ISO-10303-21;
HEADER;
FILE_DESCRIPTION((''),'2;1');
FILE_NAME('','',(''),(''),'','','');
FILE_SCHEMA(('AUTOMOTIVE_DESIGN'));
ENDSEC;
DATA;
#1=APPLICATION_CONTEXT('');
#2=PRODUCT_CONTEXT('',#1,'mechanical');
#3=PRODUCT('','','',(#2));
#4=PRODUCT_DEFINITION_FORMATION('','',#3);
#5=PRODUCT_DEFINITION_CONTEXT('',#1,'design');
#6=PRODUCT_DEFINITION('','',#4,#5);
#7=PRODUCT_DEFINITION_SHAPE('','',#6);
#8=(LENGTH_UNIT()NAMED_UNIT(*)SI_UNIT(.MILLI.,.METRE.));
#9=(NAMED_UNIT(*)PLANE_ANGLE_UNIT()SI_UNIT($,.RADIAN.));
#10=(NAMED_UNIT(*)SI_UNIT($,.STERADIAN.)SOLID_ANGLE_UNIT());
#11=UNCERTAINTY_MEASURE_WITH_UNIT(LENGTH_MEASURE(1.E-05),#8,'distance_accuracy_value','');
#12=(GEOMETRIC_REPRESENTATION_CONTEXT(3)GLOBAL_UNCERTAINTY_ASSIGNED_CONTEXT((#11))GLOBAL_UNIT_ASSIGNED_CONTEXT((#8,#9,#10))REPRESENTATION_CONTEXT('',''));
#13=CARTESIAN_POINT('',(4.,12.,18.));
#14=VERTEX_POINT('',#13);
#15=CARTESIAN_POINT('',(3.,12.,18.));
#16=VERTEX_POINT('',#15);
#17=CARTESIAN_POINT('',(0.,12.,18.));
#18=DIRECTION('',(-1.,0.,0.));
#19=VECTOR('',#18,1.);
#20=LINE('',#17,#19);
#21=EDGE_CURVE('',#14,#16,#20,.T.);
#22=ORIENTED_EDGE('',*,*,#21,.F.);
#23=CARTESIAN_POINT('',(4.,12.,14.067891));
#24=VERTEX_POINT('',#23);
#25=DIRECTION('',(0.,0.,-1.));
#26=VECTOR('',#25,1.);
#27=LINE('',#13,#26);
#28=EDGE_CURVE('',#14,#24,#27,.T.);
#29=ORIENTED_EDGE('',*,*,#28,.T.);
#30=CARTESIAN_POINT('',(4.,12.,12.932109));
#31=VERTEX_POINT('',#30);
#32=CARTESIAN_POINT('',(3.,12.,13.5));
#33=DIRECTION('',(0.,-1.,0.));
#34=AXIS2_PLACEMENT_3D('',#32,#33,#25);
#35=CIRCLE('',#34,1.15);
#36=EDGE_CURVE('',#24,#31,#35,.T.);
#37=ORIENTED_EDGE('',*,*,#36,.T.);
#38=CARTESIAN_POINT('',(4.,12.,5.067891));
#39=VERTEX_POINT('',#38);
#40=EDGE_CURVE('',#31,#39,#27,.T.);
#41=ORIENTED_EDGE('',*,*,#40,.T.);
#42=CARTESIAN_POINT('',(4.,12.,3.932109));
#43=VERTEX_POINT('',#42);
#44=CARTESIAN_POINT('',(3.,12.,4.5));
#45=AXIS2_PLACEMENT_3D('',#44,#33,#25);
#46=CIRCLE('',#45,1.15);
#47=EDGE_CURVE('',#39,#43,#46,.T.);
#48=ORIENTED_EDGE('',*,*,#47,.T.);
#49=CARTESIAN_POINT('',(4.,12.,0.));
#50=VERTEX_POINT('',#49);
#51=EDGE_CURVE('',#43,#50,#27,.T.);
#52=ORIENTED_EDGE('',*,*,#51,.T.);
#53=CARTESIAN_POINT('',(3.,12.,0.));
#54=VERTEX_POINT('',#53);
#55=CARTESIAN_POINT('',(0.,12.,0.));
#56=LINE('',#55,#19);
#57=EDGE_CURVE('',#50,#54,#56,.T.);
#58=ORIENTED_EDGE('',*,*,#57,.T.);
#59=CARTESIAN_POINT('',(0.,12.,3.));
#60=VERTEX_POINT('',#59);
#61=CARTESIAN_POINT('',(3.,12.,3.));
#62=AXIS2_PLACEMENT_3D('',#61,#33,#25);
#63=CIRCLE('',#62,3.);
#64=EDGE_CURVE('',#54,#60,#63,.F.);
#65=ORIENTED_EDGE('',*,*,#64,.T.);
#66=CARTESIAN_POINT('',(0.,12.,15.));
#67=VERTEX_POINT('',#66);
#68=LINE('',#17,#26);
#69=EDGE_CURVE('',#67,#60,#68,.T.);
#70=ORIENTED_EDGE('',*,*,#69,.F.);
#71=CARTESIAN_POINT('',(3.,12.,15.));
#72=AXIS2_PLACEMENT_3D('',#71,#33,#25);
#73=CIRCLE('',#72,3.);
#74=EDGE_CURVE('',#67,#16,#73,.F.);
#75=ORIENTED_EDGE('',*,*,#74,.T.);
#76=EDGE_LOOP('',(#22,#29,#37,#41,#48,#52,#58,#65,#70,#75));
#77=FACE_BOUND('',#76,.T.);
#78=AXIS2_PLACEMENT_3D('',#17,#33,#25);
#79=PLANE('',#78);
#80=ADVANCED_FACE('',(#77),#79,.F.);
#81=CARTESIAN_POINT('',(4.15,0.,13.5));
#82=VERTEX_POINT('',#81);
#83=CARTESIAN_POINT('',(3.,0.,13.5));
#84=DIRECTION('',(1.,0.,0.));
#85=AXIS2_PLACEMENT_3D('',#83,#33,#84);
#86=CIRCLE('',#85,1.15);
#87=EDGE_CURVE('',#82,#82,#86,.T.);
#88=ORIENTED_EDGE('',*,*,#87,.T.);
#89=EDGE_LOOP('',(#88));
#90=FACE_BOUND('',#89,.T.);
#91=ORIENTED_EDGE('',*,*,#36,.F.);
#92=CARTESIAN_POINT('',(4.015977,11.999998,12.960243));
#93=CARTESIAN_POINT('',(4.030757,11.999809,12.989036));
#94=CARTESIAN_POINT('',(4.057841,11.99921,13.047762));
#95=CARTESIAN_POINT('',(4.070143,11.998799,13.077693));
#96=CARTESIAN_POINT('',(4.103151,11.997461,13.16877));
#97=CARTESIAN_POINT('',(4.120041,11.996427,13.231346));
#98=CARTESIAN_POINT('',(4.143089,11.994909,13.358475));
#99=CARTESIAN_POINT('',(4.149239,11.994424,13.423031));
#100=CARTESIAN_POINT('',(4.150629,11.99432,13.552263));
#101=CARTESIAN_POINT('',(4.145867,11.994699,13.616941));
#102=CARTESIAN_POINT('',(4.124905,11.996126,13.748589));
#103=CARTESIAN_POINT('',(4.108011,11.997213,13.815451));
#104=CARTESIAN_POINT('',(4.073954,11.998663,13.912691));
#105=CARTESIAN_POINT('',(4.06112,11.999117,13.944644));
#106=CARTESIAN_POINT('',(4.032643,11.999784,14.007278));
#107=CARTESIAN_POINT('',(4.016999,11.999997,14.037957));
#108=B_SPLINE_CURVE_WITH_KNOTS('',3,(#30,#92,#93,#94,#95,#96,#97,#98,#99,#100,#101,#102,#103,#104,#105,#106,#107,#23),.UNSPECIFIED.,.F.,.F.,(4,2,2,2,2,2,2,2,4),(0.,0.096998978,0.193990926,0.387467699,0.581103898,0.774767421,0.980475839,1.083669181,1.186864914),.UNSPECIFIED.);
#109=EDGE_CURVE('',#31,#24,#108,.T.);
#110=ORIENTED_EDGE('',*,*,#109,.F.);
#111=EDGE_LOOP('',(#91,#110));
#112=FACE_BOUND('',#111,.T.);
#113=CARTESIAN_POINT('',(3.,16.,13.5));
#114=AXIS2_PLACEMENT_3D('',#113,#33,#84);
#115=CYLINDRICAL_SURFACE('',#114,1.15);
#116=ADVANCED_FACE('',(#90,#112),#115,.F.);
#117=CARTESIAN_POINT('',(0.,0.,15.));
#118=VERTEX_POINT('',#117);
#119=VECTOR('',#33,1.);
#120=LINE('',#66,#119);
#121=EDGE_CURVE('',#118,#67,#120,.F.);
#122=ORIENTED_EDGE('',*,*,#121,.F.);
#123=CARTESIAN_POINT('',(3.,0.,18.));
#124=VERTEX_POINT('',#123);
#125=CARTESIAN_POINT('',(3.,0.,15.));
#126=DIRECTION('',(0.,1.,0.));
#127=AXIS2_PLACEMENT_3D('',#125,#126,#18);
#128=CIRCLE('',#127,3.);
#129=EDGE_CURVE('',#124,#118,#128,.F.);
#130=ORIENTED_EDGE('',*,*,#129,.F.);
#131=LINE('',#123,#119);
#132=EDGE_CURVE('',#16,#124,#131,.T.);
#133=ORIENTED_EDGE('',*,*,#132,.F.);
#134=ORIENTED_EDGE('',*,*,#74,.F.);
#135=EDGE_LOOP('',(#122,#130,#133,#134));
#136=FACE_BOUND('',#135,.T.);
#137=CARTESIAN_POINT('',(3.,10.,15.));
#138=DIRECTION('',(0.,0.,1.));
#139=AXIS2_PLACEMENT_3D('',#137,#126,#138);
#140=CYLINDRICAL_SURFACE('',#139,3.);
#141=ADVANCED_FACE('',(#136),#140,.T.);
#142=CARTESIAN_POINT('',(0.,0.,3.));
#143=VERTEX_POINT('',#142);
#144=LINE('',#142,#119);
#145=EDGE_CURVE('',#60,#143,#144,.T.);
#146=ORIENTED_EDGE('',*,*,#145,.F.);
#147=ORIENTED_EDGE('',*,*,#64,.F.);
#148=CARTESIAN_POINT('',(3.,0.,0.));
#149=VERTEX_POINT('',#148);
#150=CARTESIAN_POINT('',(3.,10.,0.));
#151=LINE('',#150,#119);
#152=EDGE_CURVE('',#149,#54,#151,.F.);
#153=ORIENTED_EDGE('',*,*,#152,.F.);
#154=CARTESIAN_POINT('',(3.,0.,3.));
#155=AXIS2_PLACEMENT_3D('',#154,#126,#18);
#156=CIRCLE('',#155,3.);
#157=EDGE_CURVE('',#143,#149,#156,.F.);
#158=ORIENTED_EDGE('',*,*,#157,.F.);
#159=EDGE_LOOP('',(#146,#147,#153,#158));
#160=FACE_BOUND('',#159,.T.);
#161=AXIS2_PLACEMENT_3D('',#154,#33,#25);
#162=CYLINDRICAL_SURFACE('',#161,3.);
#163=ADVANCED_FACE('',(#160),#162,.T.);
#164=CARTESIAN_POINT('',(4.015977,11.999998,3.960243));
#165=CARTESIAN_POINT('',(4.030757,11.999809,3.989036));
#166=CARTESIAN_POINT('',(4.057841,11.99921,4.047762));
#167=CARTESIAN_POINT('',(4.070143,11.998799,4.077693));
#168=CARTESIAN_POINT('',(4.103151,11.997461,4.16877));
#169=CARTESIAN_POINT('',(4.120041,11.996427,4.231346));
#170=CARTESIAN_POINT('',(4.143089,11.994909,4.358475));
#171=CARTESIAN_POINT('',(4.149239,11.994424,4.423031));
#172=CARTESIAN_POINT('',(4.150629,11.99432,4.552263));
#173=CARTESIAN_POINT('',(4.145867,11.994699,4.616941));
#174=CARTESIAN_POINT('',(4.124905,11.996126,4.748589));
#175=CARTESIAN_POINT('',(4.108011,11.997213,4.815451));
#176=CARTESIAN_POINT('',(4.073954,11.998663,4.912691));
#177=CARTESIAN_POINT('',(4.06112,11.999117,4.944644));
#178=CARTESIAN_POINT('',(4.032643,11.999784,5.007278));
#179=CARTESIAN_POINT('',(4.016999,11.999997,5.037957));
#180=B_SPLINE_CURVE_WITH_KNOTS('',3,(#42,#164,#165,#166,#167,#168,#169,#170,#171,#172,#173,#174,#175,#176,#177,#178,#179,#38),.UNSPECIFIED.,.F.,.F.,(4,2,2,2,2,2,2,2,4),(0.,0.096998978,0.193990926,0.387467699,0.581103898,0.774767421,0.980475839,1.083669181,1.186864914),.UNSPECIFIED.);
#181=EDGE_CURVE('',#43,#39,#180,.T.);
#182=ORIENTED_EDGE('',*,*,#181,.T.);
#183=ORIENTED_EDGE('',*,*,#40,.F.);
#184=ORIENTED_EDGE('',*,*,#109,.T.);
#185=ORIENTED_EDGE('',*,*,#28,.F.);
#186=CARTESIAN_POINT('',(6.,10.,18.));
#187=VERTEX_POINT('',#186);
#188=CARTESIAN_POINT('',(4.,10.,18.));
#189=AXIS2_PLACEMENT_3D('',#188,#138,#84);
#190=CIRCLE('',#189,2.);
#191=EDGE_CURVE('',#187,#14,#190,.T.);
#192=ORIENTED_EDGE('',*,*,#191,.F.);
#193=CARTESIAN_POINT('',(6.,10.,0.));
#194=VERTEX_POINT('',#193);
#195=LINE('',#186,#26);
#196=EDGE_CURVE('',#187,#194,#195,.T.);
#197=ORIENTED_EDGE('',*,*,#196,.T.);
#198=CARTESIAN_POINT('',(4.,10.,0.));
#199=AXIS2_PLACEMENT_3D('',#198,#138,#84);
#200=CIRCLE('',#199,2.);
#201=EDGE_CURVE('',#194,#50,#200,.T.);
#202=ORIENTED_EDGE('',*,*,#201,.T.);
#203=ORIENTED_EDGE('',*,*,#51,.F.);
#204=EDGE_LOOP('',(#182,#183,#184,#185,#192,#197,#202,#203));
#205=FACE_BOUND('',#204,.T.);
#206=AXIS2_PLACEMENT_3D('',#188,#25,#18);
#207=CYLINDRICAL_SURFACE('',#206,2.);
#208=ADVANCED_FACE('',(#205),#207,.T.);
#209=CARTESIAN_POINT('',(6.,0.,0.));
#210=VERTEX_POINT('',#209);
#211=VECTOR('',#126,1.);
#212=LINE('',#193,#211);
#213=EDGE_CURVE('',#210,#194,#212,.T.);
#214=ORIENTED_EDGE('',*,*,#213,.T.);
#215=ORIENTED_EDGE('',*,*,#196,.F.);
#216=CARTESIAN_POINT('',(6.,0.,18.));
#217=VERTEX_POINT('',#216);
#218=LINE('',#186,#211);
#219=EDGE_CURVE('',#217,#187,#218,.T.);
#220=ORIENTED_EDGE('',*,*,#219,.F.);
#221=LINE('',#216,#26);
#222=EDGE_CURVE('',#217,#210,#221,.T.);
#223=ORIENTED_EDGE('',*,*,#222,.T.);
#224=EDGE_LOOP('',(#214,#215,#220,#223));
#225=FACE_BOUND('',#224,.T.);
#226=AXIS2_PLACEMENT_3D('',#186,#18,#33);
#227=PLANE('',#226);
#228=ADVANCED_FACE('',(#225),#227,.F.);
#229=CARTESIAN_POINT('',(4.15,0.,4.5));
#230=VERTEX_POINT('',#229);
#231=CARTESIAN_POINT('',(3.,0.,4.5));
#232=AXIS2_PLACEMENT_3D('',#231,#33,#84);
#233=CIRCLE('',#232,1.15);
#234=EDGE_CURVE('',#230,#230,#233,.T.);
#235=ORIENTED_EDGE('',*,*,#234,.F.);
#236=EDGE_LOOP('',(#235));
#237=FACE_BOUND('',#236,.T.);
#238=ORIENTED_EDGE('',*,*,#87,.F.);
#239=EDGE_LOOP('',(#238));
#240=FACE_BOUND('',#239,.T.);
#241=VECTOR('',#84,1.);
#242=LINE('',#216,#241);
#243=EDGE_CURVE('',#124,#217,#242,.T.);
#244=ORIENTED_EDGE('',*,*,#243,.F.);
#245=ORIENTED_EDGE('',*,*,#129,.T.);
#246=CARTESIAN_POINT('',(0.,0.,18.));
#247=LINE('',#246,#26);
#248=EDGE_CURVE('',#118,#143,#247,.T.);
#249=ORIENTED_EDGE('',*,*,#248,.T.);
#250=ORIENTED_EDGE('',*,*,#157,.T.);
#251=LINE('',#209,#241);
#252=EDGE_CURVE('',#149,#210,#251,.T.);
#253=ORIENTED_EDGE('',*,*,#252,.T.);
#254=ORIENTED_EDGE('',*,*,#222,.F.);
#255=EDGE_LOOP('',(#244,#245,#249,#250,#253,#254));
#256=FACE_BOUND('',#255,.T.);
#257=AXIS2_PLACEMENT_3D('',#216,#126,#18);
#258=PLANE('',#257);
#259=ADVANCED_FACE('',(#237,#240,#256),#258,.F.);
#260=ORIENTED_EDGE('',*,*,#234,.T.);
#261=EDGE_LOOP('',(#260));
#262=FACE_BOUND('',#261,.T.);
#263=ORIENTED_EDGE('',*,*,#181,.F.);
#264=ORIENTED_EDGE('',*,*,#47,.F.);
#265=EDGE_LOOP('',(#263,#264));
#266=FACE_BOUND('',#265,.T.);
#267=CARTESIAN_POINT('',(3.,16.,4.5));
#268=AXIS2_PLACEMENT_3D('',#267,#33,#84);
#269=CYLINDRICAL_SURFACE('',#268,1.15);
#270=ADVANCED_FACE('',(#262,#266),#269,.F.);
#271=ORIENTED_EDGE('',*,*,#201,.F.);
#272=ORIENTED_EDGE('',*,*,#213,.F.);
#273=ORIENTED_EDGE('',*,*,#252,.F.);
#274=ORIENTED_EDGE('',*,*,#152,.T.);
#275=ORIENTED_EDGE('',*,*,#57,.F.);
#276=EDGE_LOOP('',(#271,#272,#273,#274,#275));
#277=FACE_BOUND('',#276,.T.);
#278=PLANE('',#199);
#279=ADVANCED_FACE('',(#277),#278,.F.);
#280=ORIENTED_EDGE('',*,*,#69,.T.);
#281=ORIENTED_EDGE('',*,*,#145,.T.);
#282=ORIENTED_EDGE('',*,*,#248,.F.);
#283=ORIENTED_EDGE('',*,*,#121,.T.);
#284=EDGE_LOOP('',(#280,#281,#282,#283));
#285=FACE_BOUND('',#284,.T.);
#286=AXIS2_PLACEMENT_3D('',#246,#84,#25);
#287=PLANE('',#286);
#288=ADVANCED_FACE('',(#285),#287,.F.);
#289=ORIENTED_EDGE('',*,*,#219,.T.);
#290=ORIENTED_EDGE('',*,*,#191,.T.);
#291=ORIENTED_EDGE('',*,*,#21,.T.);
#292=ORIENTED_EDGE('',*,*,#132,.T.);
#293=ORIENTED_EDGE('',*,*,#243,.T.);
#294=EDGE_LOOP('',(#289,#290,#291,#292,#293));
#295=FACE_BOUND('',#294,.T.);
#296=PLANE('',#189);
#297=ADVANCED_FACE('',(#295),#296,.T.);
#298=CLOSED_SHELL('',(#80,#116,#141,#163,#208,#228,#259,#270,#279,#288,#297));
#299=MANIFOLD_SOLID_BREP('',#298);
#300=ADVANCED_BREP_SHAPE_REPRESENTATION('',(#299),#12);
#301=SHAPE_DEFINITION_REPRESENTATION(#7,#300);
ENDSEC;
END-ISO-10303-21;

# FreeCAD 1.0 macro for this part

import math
import FreeCAD as App
import Part
import Sketcher

V = App.Vector
Q = App.Units.Quantity


def edges_at(feature, points):
    """Names of the edges that pass closest to the given points."""
    edges = feature.Shape.Edges
    near = lambda p: min(range(len(edges)), key=lambda i: edges[i].distToShape(Part.Vertex(*p))[0])
    return sorted({f"Edge{near(p) + 1}" for p in points})

doc = App.newDocument("Part")
body = doc.addObject("PartDesign::Body", "Body")

sketch1 = doc.addObject("Sketcher::SketchObject", "Sketch")
body.addObject(sketch1)
sketch1.AttachmentSupport = (doc.XY_Plane, [""])
sketch1.MapMode = "FlatFace"
sketch1.addGeometry([
    Part.LineSegment(V(0, 0, 0), V(6, 0, 0)),
    Part.LineSegment(V(6, 0, 0), V(6, 10, 0)),
    Part.ArcOfCircle(Part.Circle(V(4, 10, 0), V(0, 0, 1), 2), math.radians(0), math.radians(90)),
    Part.LineSegment(V(4, 12, 0), V(0, 12, 0)),
    Part.LineSegment(V(0, 12, 0), V(0, 0, 0)),
], False)
sketch1.addConstraint([
    Sketcher.Constraint("Coincident", 0, 2, 1, 1),
    Sketcher.Constraint("Tangent", 1, 2, 2, 1),
    Sketcher.Constraint("Tangent", 2, 2, 3, 1),
    Sketcher.Constraint("Coincident", 3, 2, 4, 1),
    Sketcher.Constraint("Coincident", 4, 2, 0, 1),
    Sketcher.Constraint("Horizontal", 0),
    Sketcher.Constraint("Vertical", 1),
    Sketcher.Constraint("Horizontal", 3),
    Sketcher.Constraint("Vertical", 4),
    Sketcher.Constraint("Coincident", 4, 2, -1, 1),
    Sketcher.Constraint("Radius", 2, Q("2 mm")),
    Sketcher.Constraint("DistanceX", 0, 1, 0, 2, Q("6 mm")),
    Sketcher.Constraint("DistanceY", 1, 1, 1, 2, Q("10 mm")),
])
pad1 = doc.addObject("PartDesign::Pad", "Pad")
body.addObject(pad1)
pad1.Profile = sketch1
pad1.Length = 18

sketch2 = doc.addObject("Sketcher::SketchObject", "Sketch001")
body.addObject(sketch2)
sketch2.AttachmentSupport = (doc.XZ_Plane, [""])
sketch2.MapMode = "FlatFace"
sketch2.addGeometry([
    Part.Circle(V(3, 13.5, 0), V(0, 0, 1), 1.15),
    Part.Circle(V(3, 4.5, 0), V(0, 0, 1), 1.15),
], False)
sketch2.addConstraint([
    Sketcher.Constraint("Equal", 0, 1),
    Sketcher.Constraint("Vertical", 0, 3, 1, 3),
    Sketcher.Constraint("Diameter", 0, Q("2.3 mm")),
    Sketcher.Constraint("DistanceX", -1, 1, 0, 3, Q("3 mm")),
    Sketcher.Constraint("DistanceY", 1, 3, 0, 3, Q("9 mm")),
    Sketcher.Constraint("DistanceY", -1, 1, 0, 3, Q("13.5 mm")),
])
pocket1 = doc.addObject("PartDesign::Pocket", "Pocket")
body.addObject(pocket1)
pocket1.Profile = sketch2
pocket1.Length = 16
doc.recompute()

fillet = doc.addObject("PartDesign::Fillet", "Fillet")
body.addObject(fillet)
fillet.Base = (pocket1, edges_at(pocket1, [(0, 6, 18), (0, 6, 0)]))
fillet.Radius = 3

doc.recompute()
